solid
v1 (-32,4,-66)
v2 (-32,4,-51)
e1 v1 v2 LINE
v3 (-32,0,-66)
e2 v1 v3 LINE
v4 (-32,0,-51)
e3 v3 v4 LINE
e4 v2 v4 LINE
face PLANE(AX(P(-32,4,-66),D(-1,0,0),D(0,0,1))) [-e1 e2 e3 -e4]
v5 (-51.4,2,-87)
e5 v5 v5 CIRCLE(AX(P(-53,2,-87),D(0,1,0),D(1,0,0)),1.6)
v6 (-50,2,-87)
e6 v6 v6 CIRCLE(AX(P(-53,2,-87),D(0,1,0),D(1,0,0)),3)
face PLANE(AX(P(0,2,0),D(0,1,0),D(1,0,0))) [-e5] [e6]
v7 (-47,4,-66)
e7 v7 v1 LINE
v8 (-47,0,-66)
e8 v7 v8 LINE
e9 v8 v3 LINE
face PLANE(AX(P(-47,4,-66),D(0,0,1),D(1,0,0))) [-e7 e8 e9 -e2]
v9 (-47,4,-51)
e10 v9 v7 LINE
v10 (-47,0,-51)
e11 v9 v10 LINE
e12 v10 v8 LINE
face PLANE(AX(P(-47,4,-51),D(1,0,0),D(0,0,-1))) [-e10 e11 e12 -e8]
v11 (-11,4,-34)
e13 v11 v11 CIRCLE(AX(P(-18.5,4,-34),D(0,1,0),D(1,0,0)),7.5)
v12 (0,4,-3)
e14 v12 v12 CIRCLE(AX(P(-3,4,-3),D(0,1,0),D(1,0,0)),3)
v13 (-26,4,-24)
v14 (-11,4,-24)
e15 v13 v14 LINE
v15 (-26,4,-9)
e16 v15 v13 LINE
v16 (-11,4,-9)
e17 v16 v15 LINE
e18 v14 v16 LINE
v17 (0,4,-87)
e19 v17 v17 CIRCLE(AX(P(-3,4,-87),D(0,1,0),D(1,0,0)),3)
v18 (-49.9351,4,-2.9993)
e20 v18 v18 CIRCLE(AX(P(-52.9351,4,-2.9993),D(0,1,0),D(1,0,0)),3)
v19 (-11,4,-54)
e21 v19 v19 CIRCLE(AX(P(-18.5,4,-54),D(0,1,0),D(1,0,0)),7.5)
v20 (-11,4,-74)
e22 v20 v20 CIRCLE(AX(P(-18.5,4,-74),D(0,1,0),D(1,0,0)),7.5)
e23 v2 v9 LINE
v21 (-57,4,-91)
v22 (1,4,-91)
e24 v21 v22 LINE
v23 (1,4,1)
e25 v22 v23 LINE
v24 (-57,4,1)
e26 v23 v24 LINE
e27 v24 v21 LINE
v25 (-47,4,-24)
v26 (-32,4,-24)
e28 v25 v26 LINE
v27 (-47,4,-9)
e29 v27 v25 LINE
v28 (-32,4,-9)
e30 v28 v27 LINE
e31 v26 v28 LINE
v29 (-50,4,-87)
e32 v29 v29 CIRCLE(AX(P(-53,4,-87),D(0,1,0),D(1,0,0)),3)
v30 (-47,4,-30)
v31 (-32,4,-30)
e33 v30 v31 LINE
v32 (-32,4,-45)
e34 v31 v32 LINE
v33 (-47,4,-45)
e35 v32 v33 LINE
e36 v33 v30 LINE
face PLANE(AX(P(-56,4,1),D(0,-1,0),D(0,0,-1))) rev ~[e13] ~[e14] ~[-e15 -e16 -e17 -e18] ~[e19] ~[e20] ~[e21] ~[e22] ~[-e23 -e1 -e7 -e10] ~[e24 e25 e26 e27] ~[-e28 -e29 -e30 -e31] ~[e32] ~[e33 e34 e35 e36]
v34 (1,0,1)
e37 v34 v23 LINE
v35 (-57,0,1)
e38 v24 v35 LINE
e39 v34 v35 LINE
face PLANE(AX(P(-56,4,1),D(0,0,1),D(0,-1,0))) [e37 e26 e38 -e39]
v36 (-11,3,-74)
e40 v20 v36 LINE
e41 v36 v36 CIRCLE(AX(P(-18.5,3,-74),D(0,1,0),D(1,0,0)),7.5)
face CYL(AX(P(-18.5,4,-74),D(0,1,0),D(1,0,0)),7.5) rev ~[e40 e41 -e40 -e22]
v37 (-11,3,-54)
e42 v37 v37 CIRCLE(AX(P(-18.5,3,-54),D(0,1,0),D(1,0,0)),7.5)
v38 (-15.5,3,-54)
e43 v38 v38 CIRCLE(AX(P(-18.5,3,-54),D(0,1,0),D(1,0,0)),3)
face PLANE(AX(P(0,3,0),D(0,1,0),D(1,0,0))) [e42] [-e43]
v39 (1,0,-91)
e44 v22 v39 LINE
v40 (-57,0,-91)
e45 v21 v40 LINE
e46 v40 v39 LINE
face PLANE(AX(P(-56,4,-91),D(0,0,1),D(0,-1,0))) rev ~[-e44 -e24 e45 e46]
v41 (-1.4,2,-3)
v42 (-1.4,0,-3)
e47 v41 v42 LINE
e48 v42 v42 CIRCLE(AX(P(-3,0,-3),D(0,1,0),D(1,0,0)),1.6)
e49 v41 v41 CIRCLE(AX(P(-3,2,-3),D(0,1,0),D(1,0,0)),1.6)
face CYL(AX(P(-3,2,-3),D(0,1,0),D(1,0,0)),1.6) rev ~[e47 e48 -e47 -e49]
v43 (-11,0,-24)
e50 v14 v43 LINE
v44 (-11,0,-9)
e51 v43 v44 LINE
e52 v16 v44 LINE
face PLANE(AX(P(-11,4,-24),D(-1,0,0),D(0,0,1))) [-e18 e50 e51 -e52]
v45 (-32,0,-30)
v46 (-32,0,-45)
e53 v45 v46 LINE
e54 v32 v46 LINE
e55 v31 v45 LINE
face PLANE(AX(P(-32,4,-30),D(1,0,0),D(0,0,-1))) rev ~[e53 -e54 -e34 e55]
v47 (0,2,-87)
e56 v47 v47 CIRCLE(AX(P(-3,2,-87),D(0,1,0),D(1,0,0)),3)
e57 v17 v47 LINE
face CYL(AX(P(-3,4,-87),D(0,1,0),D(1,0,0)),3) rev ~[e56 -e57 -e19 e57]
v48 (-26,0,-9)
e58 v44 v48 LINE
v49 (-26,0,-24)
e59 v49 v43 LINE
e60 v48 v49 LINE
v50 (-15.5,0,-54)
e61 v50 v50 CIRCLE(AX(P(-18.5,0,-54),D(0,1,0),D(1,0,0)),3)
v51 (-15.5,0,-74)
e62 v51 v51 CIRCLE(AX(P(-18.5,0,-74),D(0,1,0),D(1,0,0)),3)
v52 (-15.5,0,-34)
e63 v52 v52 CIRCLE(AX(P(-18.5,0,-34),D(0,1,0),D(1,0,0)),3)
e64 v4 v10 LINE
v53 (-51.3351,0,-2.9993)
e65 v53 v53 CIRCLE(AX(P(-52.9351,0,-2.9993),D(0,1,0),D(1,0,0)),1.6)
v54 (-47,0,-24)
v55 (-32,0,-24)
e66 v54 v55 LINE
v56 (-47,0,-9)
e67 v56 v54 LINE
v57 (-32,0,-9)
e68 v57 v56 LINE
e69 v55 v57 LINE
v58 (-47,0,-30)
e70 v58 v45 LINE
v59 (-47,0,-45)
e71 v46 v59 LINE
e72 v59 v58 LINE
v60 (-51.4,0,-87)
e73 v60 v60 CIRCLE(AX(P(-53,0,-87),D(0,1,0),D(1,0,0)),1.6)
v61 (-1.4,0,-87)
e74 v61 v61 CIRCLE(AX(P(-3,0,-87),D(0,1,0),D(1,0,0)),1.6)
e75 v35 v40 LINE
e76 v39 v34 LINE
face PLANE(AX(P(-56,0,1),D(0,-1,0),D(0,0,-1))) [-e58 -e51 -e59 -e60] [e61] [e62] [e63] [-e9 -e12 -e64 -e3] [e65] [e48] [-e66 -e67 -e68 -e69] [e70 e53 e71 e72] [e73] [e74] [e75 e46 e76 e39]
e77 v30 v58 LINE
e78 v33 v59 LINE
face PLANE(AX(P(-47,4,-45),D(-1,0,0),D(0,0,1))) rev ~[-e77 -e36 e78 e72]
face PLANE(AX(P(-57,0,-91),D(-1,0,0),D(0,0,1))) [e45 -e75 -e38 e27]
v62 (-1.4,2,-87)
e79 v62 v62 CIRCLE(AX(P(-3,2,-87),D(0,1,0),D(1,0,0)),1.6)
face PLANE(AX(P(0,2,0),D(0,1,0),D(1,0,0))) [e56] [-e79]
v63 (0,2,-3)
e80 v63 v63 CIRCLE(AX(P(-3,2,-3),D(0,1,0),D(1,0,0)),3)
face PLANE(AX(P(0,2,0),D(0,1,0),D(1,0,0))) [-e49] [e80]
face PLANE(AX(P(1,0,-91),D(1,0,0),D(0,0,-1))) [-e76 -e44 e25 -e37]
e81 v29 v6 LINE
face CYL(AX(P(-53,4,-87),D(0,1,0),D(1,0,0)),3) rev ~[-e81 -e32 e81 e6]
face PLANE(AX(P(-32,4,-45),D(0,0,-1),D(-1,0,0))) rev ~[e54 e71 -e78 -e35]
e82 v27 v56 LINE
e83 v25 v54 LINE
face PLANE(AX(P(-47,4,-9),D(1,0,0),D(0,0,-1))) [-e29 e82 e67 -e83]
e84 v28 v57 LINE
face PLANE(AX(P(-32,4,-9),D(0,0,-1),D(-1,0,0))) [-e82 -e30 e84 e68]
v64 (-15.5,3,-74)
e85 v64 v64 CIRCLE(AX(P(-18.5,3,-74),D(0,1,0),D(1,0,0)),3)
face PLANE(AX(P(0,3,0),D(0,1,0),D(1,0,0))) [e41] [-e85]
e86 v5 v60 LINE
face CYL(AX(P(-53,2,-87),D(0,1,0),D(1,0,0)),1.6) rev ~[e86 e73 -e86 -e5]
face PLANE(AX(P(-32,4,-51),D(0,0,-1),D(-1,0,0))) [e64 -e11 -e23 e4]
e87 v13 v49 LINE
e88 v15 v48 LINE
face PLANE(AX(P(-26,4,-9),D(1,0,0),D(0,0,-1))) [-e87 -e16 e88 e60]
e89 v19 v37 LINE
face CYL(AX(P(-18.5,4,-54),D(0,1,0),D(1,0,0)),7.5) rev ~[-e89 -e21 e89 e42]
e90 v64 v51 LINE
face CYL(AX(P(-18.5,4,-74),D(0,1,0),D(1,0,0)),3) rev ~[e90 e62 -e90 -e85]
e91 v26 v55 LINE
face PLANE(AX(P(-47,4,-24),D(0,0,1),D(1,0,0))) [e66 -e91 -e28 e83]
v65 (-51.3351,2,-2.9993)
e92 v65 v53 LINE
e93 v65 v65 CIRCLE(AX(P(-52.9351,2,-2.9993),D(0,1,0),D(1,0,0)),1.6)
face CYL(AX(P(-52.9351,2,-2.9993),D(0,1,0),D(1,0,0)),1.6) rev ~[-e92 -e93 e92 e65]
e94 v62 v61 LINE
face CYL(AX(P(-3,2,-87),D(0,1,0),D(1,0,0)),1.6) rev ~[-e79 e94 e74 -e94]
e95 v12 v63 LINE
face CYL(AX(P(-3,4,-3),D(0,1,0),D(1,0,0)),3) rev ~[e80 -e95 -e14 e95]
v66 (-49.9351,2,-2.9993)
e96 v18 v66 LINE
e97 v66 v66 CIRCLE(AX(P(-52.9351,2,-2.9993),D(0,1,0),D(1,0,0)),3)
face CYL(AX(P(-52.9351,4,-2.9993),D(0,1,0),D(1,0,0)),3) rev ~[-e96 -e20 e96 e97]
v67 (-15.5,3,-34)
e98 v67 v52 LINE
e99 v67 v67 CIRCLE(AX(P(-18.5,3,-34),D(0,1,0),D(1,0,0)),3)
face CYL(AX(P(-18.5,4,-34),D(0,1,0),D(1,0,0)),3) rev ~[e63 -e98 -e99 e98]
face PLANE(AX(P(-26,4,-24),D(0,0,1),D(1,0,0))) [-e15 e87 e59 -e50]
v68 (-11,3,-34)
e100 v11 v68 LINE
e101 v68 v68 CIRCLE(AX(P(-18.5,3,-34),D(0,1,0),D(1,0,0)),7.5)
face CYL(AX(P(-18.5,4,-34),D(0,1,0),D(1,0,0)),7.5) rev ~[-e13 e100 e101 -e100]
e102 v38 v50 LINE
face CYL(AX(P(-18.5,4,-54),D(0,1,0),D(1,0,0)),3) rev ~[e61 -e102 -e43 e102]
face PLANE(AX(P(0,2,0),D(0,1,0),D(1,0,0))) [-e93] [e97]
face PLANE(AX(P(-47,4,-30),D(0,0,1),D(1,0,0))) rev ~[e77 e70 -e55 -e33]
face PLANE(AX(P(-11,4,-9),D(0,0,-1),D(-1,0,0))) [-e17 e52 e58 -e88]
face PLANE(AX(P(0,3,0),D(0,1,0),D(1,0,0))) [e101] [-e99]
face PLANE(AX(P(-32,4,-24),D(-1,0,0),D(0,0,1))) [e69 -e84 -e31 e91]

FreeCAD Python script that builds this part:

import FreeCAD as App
import Part
import Sketcher
from FreeCAD import Vector


def add_polygon(sketch, points):
    """Adds a closed chain of lines whose ends are joined by coincident constraints."""
    first, n = sketch.GeometryCount, len(points)
    for a, b in zip(points, points[1:] + points[:1]):
        sketch.addGeometry(Part.LineSegment(App.Vector(*a, 0), App.Vector(*b, 0)), False)
    for i in range(n):
        sketch.addConstraint(Sketcher.Constraint("Coincident", first + i, 2, first + (i + 1) % n, 1))

doc = App.newDocument("Part")
body = doc.addObject("PartDesign::Body", "Body")

sketch1 = body.newObject("Sketcher::SketchObject", "Sketch")
sketch1.AttachmentSupport = (doc.getObject("XZ_Plane"), [""])
sketch1.MapMode = "FlatFace"
add_polygon(sketch1, [(-56, 0), (0, 0), (0, -90), (-56, -90)])
sketch1.addConstraint(Sketcher.Constraint("Horizontal", 0))
sketch1.addConstraint(Sketcher.Constraint("Vertical", 1))
sketch1.addConstraint(Sketcher.Constraint("Horizontal", 2))
sketch1.addConstraint(Sketcher.Constraint("Vertical", 3))
sketch1.addConstraint(Sketcher.Constraint("Coincident", 0, 2, -1, 1))
sketch1.addConstraint(Sketcher.Constraint("DistanceX", 0, 1, 0, 2, 56.0))
sketch1.addConstraint(Sketcher.Constraint("DistanceY", 1, 2, 1, 1, 90.0))
pad1 = body.newObject("PartDesign::Pad", "Pad")
pad1.Profile = sketch1
pad1.Length = 4
pad1.Reversed = True

sketch2 = body.newObject("Sketcher::SketchObject", "Sketch001")
sketch2.AttachmentSupport = (doc.getObject("XY_Plane"), [""])
sketch2.MapMode = "FlatFace"
sketch2.AttachmentOffset = App.Placement(Vector(0, 0, -90), App.Rotation())
add_polygon(sketch2, [(0, 4), (0, 0), (-56, 0), (-56, 4)])
sketch2.addConstraint(Sketcher.Constraint("Vertical", 0))
sketch2.addConstraint(Sketcher.Constraint("Horizontal", 1))
sketch2.addConstraint(Sketcher.Constraint("Vertical", 2))
sketch2.addConstraint(Sketcher.Constraint("Horizontal", 3))
sketch2.addConstraint(Sketcher.Constraint("Coincident", 0, 2, -1, 1))
sketch2.addConstraint(Sketcher.Constraint("DistanceX", 1, 2, 1, 1, 56.0))
sketch2.addConstraint(Sketcher.Constraint("DistanceY", 0, 2, 0, 1, 4.0))
pad2 = body.newObject("PartDesign::Pad", "Pad001")
pad2.Profile = sketch2
pad2.Length = 1
pad2.Reversed = True

sketch3 = body.newObject("Sketcher::SketchObject", "Sketch002")
sketch3.AttachmentSupport = (doc.getObject("XY_Plane"), [""])
sketch3.MapMode = "FlatFace"
add_polygon(sketch3, [(-56, 4), (-56, 0), (0, 0), (0, 4)])
sketch3.addConstraint(Sketcher.Constraint("Vertical", 0))
sketch3.addConstraint(Sketcher.Constraint("Horizontal", 1))
sketch3.addConstraint(Sketcher.Constraint("Vertical", 2))
sketch3.addConstraint(Sketcher.Constraint("Horizontal", 3))
sketch3.addConstraint(Sketcher.Constraint("Coincident", 1, 2, -1, 1))
sketch3.addConstraint(Sketcher.Constraint("DistanceX", 1, 1, 1, 2, 56.0))
sketch3.addConstraint(Sketcher.Constraint("DistanceY", 0, 2, 0, 1, 4.0))
pad3 = body.newObject("PartDesign::Pad", "Pad002")
pad3.Profile = sketch3
pad3.Length = 1

sketch4 = body.newObject("Sketcher::SketchObject", "Sketch003")
sketch4.AttachmentSupport = (doc.getObject("YZ_Plane"), [""])
sketch4.MapMode = "FlatFace"
add_polygon(sketch4, [(4, 1), (0, 1), (0, -91), (4, -91)])
sketch4.addConstraint(Sketcher.Constraint("Horizontal", 0))
sketch4.addConstraint(Sketcher.Constraint("Vertical", 1))
sketch4.addConstraint(Sketcher.Constraint("Horizontal", 2))
sketch4.addConstraint(Sketcher.Constraint("Vertical", 3))
sketch4.addConstraint(Sketcher.Constraint("PointOnObject", 0, 2, -2))
sketch4.addConstraint(Sketcher.Constraint("DistanceX", 0, 2, 0, 1, 4.0))
sketch4.addConstraint(Sketcher.Constraint("DistanceY", 1, 2, 1, 1, 92.0))
sketch4.addConstraint(Sketcher.Constraint("DistanceY", -1, 1, 0, 2, 1.0))
pad4 = body.newObject("PartDesign::Pad", "Pad003")
pad4.Profile = sketch4
pad4.Length = 1

sketch5 = body.newObject("Sketcher::SketchObject", "Sketch004")
sketch5.AttachmentSupport = (doc.getObject("YZ_Plane"), [""])
sketch5.MapMode = "FlatFace"
sketch5.AttachmentOffset = App.Placement(Vector(0, 0, -56), App.Rotation())
add_polygon(sketch5, [(0, -91), (0, 1), (4, 1), (4, -91)])
sketch5.addConstraint(Sketcher.Constraint("Vertical", 0))
sketch5.addConstraint(Sketcher.Constraint("Horizontal", 1))
sketch5.addConstraint(Sketcher.Constraint("Vertical", 2))
sketch5.addConstraint(Sketcher.Constraint("Horizontal", 3))
sketch5.addConstraint(Sketcher.Constraint("PointOnObject", 0, 2, -2))
sketch5.addConstraint(Sketcher.Constraint("DistanceX", 1, 1, 1, 2, 4.0))
sketch5.addConstraint(Sketcher.Constraint("DistanceY", 0, 1, 0, 2, 92.0))
sketch5.addConstraint(Sketcher.Constraint("DistanceY", -1, 1, 0, 2, 1.0))
pad5 = body.newObject("PartDesign::Pad", "Pad004")
pad5.Profile = sketch5
pad5.Length = 1
pad5.Reversed = True

sketch6 = body.newObject("Sketcher::SketchObject", "Sketch005")
sketch6.AttachmentSupport = (doc.getObject("XZ_Plane"), [""])
sketch6.MapMode = "FlatFace"
sketch6.AttachmentOffset = App.Placement(Vector(0, 0, -4), App.Rotation())
sketch6.addGeometry(Part.Circle(Vector(-3, -3, 0), Vector(0, 0, 1), 3), False)
sketch6.addGeometry(Part.Circle(Vector(-52.9351, -2.9993, 0), Vector(0, 0, 1), 3), False)
sketch6.addGeometry(Part.Circle(Vector(-53, -87, 0), Vector(0, 0, 1), 3), False)
sketch6.addGeometry(Part.Circle(Vector(-3, -87, 0), Vector(0, 0, 1), 3), False)
sketch6.addConstraint(Sketcher.Constraint("Equal", 0, 1))
sketch6.addConstraint(Sketcher.Constraint("Equal", 1, 2))
sketch6.addConstraint(Sketcher.Constraint("Equal", 2, 3))
sketch6.addConstraint(Sketcher.Constraint("Horizontal", 2, 3, 3, 3))
sketch6.addConstraint(Sketcher.Constraint("Vertical", 0, 3, 3, 3))
sketch6.addConstraint(Sketcher.Constraint("Diameter", 0, 6.0))
sketch6.addConstraint(Sketcher.Constraint("DistanceX", 0, 3, -1, 1, 3.0))
sketch6.addConstraint(Sketcher.Constraint("DistanceY", 0, 3, -1, 1, 3.0))
sketch6.addConstraint(Sketcher.Constraint("DistanceX", 2, 3, -1, 1, 53.0))
sketch6.addConstraint(Sketcher.Constraint("DistanceY", 2, 3, -1, 1, 87.0))
sketch6.addConstraint(Sketcher.Constraint("DistanceX", 1, 3, -1, 1, 52.935))
sketch6.addConstraint(Sketcher.Constraint("DistanceY", 1, 3, -1, 1, 2.9993))
pocket1 = body.newObject("PartDesign::Pocket", "Pocket")
pocket1.Profile = sketch6
pocket1.Length = 2
pocket1.Reversed = True

sketch7 = body.newObject("Sketcher::SketchObject", "Sketch006")
sketch7.AttachmentSupport = (doc.getObject("XZ_Plane"), [""])
sketch7.MapMode = "FlatFace"
sketch7.AttachmentOffset = App.Placement(Vector(0, 0, -2), App.Rotation())
sketch7.addGeometry(Part.Circle(Vector(-3, -3, 0), Vector(0, 0, 1), 1.6), False)
sketch7.addGeometry(Part.Circle(Vector(-52.9351, -2.9993, 0), Vector(0, 0, 1), 1.6), False)
sketch7.addGeometry(Part.Circle(Vector(-53, -87, 0), Vector(0, 0, 1), 1.6), False)
sketch7.addGeometry(Part.Circle(Vector(-3, -87, 0), Vector(0, 0, 1), 1.6), False)
sketch7.addConstraint(Sketcher.Constraint("Equal", 0, 1))
sketch7.addConstraint(Sketcher.Constraint("Equal", 1, 2))
sketch7.addConstraint(Sketcher.Constraint("Equal", 2, 3))
sketch7.addConstraint(Sketcher.Constraint("Horizontal", 2, 3, 3, 3))
sketch7.addConstraint(Sketcher.Constraint("Vertical", 0, 3, 3, 3))
sketch7.addConstraint(Sketcher.Constraint("Diameter", 0, 3.2))
sketch7.addConstraint(Sketcher.Constraint("DistanceX", 0, 3, -1, 1, 3.0))
sketch7.addConstraint(Sketcher.Constraint("DistanceY", 0, 3, -1, 1, 3.0))
sketch7.addConstraint(Sketcher.Constraint("DistanceX", 2, 3, -1, 1, 53.0))
sketch7.addConstraint(Sketcher.Constraint("DistanceY", 2, 3, -1, 1, 87.0))
sketch7.addConstraint(Sketcher.Constraint("DistanceX", 1, 3, -1, 1, 52.935))
sketch7.addConstraint(Sketcher.Constraint("DistanceY", 1, 3, -1, 1, 2.9993))
pocket2 = body.newObject("PartDesign::Pocket", "Pocket001")
pocket2.Profile = sketch7
pocket2.Length = 2
pocket2.Reversed = True

sketch8 = body.newObject("Sketcher::SketchObject", "Sketch007")
sketch8.AttachmentSupport = (doc.getObject("XZ_Plane"), [""])
sketch8.MapMode = "FlatFace"
sketch8.AttachmentOffset = App.Placement(Vector(0, 0, -4), App.Rotation())
add_polygon(sketch8, [(-47, -24), (-47, -9), (-32, -9), (-32, -24)])
add_polygon(sketch8, [(-47, -45), (-47, -30), (-32, -30), (-32, -45)])
add_polygon(sketch8, [(-47, -66), (-47, -51), (-32, -51), (-32, -66)])
add_polygon(sketch8, [(-26, -24), (-26, -9), (-11, -9), (-11, -24)])
sketch8.addGeometry(Part.Circle(Vector(-18.5, -34, 0), Vector(0, 0, 1), 3), False)
sketch8.addGeometry(Part.Circle(Vector(-18.5, -54, 0), Vector(0, 0, 1), 3), False)
sketch8.addGeometry(Part.Circle(Vector(-18.5, -74, 0), Vector(0, 0, 1), 3), False)
sketch8.addConstraint(Sketcher.Constraint("Vertical", 0))
sketch8.addConstraint(Sketcher.Constraint("Horizontal", 1))
sketch8.addConstraint(Sketcher.Constraint("Vertical", 2))
sketch8.addConstraint(Sketcher.Constraint("Horizontal", 3))
sketch8.addConstraint(Sketcher.Constraint("Vertical", 4))
sketch8.addConstraint(Sketcher.Constraint("Horizontal", 5))
sketch8.addConstraint(Sketcher.Constraint("Vertical", 6))
sketch8.addConstraint(Sketcher.Constraint("Horizontal", 7))
sketch8.addConstraint(Sketcher.Constraint("Vertical", 8))
sketch8.addConstraint(Sketcher.Constraint("Horizontal", 9))
sketch8.addConstraint(Sketcher.Constraint("Vertical", 10))
sketch8.addConstraint(Sketcher.Constraint("Horizontal", 11))
sketch8.addConstraint(Sketcher.Constraint("Vertical", 12))
sketch8.addConstraint(Sketcher.Constraint("Horizontal", 13))
sketch8.addConstraint(Sketcher.Constraint("Vertical", 14))
sketch8.addConstraint(Sketcher.Constraint("Horizontal", 15))
sketch8.addConstraint(Sketcher.Constraint("Equal", 16, 17))
sketch8.addConstraint(Sketcher.Constraint("Equal", 17, 18))
sketch8.addConstraint(Sketcher.Constraint("Horizontal", 1, 2, 12, 2))
sketch8.addConstraint(Sketcher.Constraint("Horizontal", 3, 2, 14, 2))
sketch8.addConstraint(Sketcher.Constraint("Vertical", 16, 3, 17, 3))
sketch8.addConstraint(Sketcher.Constraint("Vertical", 17, 3, 18, 3))
sketch8.addConstraint(Sketcher.Constraint("Vertical", 3, 2, 4, 2))
sketch8.addConstraint(Sketcher.Constraint("Vertical", 2, 2, 5, 2))
sketch8.addConstraint(Sketcher.Constraint("Vertical", 7, 2, 8, 2))
sketch8.addConstraint(Sketcher.Constraint("Vertical", 6, 2, 9, 2))
sketch8.addConstraint(Sketcher.Constraint("Equal", 11, 13))
sketch8.addConstraint(Sketcher.Constraint("Equal", 15, 0))
sketch8.addConstraint(Sketcher.Constraint("Equal", 2, 4))
sketch8.addConstraint(Sketcher.Constraint("Equal", 6, 8))
sketch8.addConstraint(Sketcher.Constraint("Diameter", 16, 6.0))
sketch8.addConstraint(Sketcher.Constraint("DistanceX", 1, 1, 1, 2, 15.0))
sketch8.addConstraint(Sketcher.Constraint("DistanceY", 17, 3, 16, 3, 20.0))
sketch8.addConstraint(Sketcher.Constraint("DistanceY", 18, 3, 17, 3, 20.0))
sketch8.addConstraint(Sketcher.Constraint("DistanceY", 4, 2, 3, 2, 6.0))
sketch8.addConstraint(Sketcher.Constraint("DistanceY", 8, 2, 7, 2, 6.0))
sketch8.addConstraint(Sketcher.Constraint("DistanceX", 1, 2, 12, 2, 6.0))
sketch8.addConstraint(Sketcher.Constraint("DistanceY", 16, 3, -1, 1, 34.0))
sketch8.addConstraint(Sketcher.Constraint("DistanceX", 0, 2, -1, 1, 47.0))
sketch8.addConstraint(Sketcher.Constraint("DistanceY", 0, 2, -1, 1, 9.0))
sketch8.addConstraint(Sketcher.Constraint("DistanceX", 16, 3, -1, 1, 18.5))
pocket3 = body.newObject("PartDesign::Pocket", "Pocket002")
pocket3.Profile = sketch8
pocket3.Length = 4
pocket3.Reversed = True

sketch9 = body.newObject("Sketcher::SketchObject", "Sketch008")
sketch9.AttachmentSupport = (doc.getObject("XZ_Plane"), [""])
sketch9.MapMode = "FlatFace"
sketch9.AttachmentOffset = App.Placement(Vector(0, 0, -4), App.Rotation())
sketch9.addGeometry(Part.Circle(Vector(-18.5, -34, 0), Vector(0, 0, 1), 7.5), False)
sketch9.addGeometry(Part.Circle(Vector(-18.5, -34, 0), Vector(0, 0, 1), 3), False)
sketch9.addGeometry(Part.Circle(Vector(-18.5, -54, 0), Vector(0, 0, 1), 7.5), False)
sketch9.addGeometry(Part.Circle(Vector(-18.5, -54, 0), Vector(0, 0, 1), 3), False)
sketch9.addGeometry(Part.Circle(Vector(-18.5, -74, 0), Vector(0, 0, 1), 7.5), False)
sketch9.addGeometry(Part.Circle(Vector(-18.5, -74, 0), Vector(0, 0, 1), 3), False)
sketch9.addConstraint(Sketcher.Constraint("Coincident", 1, 3, 0, 3))
sketch9.addConstraint(Sketcher.Constraint("Coincident", 3, 3, 2, 3))
sketch9.addConstraint(Sketcher.Constraint("Coincident", 5, 3, 4, 3))
sketch9.addConstraint(Sketcher.Constraint("Equal", 0, 2))
sketch9.addConstraint(Sketcher.Constraint("Equal", 1, 3))
sketch9.addConstraint(Sketcher.Constraint("Equal", 2, 4))
sketch9.addConstraint(Sketcher.Constraint("Equal", 3, 5))
sketch9.addConstraint(Sketcher.Constraint("Vertical", 1, 3, 2, 3))
sketch9.addConstraint(Sketcher.Constraint("Vertical", 3, 3, 4, 3))
sketch9.addConstraint(Sketcher.Constraint("Diameter", 0, 15.0))
sketch9.addConstraint(Sketcher.Constraint("Diameter", 1, 6.0))
sketch9.addConstraint(Sketcher.Constraint("DistanceY", 0, 3, -1, 1, 34.0))
sketch9.addConstraint(Sketcher.Constraint("DistanceY", 2, 3, -1, 1, 54.0))
sketch9.addConstraint(Sketcher.Constraint("DistanceY", 4, 3, -1, 1, 74.0))
sketch9.addConstraint(Sketcher.Constraint("DistanceX", 0, 3, -1, 1, 18.5))
pocket4 = body.newObject("PartDesign::Pocket", "Pocket003")
pocket4.Profile = sketch9
pocket4.Length = 1
pocket4.Reversed = True

doc.recompute()
